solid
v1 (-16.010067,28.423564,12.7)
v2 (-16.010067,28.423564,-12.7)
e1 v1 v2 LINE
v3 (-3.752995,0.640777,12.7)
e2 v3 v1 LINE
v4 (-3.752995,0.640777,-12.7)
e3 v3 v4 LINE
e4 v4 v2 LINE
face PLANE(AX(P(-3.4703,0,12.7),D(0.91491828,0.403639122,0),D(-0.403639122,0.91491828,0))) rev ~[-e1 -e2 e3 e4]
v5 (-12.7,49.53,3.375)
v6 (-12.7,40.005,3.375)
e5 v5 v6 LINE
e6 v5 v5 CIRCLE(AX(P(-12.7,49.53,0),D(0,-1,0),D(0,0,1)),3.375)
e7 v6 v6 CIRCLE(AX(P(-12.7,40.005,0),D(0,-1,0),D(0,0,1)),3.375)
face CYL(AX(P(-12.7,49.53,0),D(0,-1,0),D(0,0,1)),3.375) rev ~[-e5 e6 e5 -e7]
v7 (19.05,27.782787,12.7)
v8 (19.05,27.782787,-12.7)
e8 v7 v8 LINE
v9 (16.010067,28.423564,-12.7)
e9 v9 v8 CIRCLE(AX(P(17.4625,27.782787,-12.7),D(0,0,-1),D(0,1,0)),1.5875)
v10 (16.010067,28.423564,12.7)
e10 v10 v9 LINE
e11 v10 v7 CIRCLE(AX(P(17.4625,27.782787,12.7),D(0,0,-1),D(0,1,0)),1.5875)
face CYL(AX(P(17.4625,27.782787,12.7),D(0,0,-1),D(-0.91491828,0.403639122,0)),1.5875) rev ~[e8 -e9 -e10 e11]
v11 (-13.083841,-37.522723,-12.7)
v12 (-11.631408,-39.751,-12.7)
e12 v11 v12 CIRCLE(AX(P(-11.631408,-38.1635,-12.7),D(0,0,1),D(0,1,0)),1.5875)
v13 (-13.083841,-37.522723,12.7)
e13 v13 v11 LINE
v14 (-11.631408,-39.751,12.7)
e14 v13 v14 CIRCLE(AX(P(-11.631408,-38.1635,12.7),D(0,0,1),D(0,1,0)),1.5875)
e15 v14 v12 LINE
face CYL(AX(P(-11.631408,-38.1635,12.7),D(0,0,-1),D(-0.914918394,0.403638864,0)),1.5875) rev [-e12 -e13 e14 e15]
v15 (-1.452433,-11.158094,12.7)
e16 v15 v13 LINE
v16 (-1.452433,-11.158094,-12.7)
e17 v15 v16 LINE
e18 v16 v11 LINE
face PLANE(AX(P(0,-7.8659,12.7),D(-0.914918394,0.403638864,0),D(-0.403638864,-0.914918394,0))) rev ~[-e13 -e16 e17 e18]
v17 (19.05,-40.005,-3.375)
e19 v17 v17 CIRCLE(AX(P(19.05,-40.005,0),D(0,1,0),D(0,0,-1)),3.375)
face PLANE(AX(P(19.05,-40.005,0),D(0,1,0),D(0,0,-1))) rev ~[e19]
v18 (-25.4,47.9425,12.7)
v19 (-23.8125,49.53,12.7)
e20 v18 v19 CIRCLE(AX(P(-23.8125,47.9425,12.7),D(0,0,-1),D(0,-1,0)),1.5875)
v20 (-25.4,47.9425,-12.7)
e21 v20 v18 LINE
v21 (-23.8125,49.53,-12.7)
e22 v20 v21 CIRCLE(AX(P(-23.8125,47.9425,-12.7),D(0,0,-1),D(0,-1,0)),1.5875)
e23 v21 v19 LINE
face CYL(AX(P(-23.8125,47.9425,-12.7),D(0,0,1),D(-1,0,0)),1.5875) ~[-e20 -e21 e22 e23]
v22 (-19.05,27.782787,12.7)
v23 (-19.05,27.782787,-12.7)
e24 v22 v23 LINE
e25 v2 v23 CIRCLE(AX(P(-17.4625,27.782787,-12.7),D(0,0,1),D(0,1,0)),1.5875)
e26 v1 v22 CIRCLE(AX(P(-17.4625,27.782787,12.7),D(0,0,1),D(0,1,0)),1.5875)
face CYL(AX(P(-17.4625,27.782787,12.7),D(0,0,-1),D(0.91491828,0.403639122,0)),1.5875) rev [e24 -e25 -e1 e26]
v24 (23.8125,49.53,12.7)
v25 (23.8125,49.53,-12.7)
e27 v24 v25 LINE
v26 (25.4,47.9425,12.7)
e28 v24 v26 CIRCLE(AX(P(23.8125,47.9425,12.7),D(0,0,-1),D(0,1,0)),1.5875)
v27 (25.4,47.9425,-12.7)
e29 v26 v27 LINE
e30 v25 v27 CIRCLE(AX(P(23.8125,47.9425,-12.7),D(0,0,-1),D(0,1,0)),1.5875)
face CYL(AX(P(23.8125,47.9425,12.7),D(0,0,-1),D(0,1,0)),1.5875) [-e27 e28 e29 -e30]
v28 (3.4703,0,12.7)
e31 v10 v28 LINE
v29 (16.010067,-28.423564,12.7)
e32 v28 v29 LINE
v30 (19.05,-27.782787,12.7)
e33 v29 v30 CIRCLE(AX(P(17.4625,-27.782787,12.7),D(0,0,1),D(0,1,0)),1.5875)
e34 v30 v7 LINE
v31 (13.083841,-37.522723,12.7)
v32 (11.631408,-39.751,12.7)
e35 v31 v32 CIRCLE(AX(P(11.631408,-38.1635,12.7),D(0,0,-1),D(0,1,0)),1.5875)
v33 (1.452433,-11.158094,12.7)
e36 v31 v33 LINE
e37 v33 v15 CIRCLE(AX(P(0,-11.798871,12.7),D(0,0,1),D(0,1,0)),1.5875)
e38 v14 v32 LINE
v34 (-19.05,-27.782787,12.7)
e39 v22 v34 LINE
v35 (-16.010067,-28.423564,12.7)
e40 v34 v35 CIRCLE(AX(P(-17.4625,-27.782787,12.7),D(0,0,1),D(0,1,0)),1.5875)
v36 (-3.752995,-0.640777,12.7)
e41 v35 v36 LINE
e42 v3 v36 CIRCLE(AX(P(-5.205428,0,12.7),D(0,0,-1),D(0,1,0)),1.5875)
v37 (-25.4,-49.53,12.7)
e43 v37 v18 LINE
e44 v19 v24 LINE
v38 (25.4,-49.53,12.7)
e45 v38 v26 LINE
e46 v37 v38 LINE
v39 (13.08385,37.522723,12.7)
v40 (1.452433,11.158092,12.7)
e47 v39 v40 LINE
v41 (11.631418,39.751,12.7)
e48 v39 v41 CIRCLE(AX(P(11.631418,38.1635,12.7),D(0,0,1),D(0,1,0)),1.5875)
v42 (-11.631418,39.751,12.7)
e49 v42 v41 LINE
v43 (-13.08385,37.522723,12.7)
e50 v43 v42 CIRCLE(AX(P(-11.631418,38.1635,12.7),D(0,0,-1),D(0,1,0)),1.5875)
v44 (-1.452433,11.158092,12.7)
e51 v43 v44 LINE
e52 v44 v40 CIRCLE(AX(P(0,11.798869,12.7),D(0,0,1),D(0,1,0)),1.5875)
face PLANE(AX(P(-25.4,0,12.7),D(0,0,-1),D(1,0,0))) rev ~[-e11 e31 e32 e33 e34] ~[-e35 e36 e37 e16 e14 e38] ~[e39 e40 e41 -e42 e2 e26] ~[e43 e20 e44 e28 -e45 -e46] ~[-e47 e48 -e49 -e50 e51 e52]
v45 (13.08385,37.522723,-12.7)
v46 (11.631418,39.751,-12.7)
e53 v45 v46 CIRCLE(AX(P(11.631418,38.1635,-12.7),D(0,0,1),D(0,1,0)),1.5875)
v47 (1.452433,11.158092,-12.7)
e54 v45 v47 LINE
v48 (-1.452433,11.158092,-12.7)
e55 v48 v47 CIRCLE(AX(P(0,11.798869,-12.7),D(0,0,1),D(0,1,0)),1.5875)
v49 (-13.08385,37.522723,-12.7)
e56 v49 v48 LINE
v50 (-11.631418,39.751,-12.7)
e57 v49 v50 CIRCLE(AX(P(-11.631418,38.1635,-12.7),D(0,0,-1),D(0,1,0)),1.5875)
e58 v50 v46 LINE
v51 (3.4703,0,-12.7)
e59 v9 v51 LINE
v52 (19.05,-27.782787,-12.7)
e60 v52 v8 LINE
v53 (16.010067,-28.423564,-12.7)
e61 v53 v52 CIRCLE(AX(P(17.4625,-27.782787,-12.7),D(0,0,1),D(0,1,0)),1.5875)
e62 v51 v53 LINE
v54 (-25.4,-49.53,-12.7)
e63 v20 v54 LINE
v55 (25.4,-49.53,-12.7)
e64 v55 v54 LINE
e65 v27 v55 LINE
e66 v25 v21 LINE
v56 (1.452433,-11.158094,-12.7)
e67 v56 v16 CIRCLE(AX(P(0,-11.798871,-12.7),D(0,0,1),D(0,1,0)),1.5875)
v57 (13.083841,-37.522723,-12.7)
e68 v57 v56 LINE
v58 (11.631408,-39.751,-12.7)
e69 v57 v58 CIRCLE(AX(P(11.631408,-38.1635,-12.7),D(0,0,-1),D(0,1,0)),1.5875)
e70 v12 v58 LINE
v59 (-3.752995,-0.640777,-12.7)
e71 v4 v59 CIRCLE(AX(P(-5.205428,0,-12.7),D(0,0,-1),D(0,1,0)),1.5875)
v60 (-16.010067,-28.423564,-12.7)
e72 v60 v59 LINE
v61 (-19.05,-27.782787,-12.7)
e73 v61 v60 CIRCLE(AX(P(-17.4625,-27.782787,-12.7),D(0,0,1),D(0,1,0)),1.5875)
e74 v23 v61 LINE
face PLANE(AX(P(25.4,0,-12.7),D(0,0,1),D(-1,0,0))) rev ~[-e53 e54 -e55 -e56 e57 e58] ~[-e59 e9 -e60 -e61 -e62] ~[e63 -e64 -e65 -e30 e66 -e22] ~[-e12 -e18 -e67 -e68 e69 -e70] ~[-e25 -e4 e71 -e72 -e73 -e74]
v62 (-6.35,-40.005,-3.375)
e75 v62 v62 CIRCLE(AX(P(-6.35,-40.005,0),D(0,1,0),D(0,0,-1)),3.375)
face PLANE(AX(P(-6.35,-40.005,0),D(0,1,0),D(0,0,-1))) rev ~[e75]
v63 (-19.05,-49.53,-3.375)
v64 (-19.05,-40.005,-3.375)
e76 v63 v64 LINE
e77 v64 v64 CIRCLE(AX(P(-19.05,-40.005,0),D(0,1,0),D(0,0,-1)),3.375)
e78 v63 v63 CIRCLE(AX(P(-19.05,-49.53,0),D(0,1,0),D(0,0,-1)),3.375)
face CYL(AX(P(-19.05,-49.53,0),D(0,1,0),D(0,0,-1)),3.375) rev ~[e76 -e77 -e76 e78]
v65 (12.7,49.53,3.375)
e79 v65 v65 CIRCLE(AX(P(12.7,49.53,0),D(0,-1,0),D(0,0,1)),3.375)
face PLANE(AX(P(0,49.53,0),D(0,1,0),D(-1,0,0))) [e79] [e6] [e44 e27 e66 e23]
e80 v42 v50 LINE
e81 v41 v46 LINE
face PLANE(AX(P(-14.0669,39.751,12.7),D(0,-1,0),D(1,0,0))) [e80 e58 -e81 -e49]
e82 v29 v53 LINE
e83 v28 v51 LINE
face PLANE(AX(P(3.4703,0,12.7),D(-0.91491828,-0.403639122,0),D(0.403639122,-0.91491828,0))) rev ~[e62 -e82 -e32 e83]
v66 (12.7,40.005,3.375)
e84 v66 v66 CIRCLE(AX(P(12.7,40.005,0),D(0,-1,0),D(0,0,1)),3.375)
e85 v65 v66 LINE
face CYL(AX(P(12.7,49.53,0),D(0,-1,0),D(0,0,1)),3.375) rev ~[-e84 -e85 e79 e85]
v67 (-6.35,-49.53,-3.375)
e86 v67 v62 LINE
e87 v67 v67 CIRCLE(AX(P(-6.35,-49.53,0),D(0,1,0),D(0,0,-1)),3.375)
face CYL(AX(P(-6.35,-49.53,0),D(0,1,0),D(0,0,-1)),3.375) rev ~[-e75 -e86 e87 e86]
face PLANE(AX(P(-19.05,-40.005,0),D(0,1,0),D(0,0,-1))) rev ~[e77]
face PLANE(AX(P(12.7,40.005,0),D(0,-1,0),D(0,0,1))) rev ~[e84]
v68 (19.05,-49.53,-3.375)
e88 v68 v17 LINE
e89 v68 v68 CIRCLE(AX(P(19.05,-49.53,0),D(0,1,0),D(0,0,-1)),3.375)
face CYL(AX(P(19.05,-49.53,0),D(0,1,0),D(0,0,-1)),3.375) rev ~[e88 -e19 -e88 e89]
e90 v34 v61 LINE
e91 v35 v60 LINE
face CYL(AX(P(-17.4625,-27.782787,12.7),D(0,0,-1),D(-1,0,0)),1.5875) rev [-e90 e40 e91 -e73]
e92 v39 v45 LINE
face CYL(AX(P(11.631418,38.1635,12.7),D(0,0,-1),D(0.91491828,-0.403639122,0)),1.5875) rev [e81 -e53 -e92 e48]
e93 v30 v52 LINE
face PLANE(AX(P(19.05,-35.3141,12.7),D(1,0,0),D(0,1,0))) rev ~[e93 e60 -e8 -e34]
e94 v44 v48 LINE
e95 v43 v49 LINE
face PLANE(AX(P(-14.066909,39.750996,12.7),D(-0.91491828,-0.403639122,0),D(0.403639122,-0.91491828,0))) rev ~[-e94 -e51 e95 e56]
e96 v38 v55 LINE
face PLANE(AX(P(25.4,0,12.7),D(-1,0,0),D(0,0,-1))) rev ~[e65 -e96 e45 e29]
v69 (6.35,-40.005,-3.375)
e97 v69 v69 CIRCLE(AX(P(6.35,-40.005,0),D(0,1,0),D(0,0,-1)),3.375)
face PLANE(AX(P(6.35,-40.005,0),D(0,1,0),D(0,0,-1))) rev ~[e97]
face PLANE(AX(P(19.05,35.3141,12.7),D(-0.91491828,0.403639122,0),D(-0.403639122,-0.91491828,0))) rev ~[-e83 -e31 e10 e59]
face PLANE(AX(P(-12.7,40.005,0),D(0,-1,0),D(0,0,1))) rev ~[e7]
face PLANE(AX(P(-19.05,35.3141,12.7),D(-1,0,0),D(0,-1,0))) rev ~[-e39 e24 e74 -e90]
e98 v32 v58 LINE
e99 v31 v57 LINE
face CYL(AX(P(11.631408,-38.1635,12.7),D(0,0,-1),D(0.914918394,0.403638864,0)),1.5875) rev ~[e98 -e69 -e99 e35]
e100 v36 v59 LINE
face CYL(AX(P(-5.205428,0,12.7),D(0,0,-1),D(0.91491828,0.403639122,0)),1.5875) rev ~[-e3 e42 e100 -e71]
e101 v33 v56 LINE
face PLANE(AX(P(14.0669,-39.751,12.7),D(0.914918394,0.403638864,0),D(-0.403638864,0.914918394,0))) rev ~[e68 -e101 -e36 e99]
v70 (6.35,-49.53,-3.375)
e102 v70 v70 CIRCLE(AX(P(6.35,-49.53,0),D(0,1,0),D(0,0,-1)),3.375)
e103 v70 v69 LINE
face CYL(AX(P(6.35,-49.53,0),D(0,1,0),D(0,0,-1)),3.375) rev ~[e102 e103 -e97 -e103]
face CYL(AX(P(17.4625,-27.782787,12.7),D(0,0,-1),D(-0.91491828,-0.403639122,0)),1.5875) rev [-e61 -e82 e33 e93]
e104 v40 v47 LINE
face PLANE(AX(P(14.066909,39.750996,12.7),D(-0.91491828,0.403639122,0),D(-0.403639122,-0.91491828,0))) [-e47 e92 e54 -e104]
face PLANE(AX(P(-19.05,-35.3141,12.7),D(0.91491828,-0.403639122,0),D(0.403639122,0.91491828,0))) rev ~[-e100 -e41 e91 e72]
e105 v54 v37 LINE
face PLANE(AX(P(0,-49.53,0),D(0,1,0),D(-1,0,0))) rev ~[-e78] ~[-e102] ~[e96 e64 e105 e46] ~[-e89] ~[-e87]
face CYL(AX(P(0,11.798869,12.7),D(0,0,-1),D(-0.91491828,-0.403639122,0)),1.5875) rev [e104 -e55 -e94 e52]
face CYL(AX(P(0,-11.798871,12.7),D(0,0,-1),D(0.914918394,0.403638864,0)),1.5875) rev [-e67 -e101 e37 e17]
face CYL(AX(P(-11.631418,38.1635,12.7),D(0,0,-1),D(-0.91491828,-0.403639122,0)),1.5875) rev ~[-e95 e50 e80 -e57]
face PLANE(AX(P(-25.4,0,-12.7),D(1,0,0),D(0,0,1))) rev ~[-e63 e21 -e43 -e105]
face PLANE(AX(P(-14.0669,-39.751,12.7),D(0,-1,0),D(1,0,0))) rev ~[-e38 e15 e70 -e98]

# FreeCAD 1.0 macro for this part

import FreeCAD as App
import Part
import Sketcher
Q = App.Units.Quantity


def edges_at(feature, points):
    """Names of the edges that pass closest to the given points."""
    edges = feature.Shape.Edges
    near = lambda p: min(range(len(edges)), key=lambda i: edges[i].distToShape(Part.Vertex(*p))[0])
    return sorted({f"Edge{near(p) + 1}" for p in points})


def add_polygon(sketch, points):
    """Adds a closed chain of lines whose ends are joined by coincident constraints."""
    first, n = sketch.GeometryCount, len(points)
    for a, b in zip(points, points[1:] + points[:1]):
        sketch.addGeometry(Part.LineSegment(App.Vector(*a, 0), App.Vector(*b, 0)), False)
    for i in range(n):
        sketch.addConstraint(Sketcher.Constraint("Coincident", first + i, 2, first + (i + 1) % n, 1))

doc = App.newDocument("Part")
params = doc.addObject("Spreadsheet::Sheet", "Params")
for row, (alias, value) in enumerate([
    ("sketch1_width", "2 in"),
    ("sketch1_height", "1 in"),
    ("pad1_length", "3.9 in"),
    ("fillet_radius", "0.0625 in"),
    ("hole_diameter", "6.75 mm"),
    ("hole_depth", "0.375 in"),
    ("hole2_diameter", "6.75 mm"),
    ("hole2_depth", "0.375 in"),
], start=1):
    params.set(f"A{row}", alias)
    params.set(f"B{row}", "=" + value)
    params.setAlias(f"B{row}", alias)

body = doc.addObject("PartDesign::Body", "Body")

# Sketch on XZ plane
sketch1 = body.newObject("Sketcher::SketchObject", "Sketch")
sketch1.AttachmentSupport = (doc.getObject("XZ_Plane"), [""])
sketch1.MapMode = "FlatFace"
add_polygon(sketch1, [(-25.4, -12.7), (-25.4, 12.7), (25.4, 12.7), (25.4, -12.7)])  # lines 0-3
sketch1.addConstraint([
    Sketcher.Constraint("Vertical", 0),
    Sketcher.Constraint("Horizontal", 1),
    Sketcher.Constraint("Vertical", 2),
    Sketcher.Constraint("Horizontal", 3),
    Sketcher.Constraint("Symmetric", 0, 2, 2, 2, -1, 1),
    Sketcher.Constraint("DistanceX", 1, 1, 1, 2, Q("2 in")),
    Sketcher.Constraint("DistanceY", 0, 1, 0, 2, Q("1 in")),
])
sketch1.setExpression("Constraints[9]", "Params.sketch1_width")
sketch1.setExpression("Constraints[10]", "Params.sketch1_height")
pad1 = body.newObject("PartDesign::Pad", "Pad")
pad1.Profile = sketch1
pad1.setExpression("Length", "Params.pad1_length")
pad1.Midplane = True

# Sketch on XY plane
sketch2 = body.newObject("Sketcher::SketchObject", "Sketch001")
sketch2.AttachmentSupport = (doc.getObject("XY_Plane"), [""])
sketch2.MapMode = "FlatFace"
sketch2.AttachmentOffset = App.Placement(App.Vector(0, 0, 0.5 * 25.4), App.Rotation())
add_polygon(sketch2, [(14.0669, -39.751), (0, -7.8659), (-14.0669, -39.751)])  # lines 0-2
add_polygon(sketch2, [(19.05, 35.3141), (3.4703, 0), (19.05, -35.3141)])  # lines 3-5
add_polygon(sketch2, [(14.0669, 39.751), (-14.066909, 39.750996), (0, 7.8659)])  # lines 6-8
add_polygon(sketch2, [(-3.4703, 0), (-19.05, 35.3141), (-19.05, -35.3141)])  # lines 9-11
sketch2.addConstraint([
    Sketcher.Constraint("Horizontal", 2),
    Sketcher.Constraint("Vertical", 5),
    Sketcher.Constraint("Horizontal", 6),
    Sketcher.Constraint("Vertical", 10),
    Sketcher.Constraint("Symmetric", 2, 2, 6, 2, -1, 1),
    Sketcher.Constraint("Symmetric", 0, 2, 7, 2, -1, 1),
    Sketcher.Constraint("Symmetric", 4, 2, 9, 2, -1, 1),
    Sketcher.Constraint("Symmetric", 3, 2, 11, 2, -1, 1),
    Sketcher.Constraint("PointOnObject", 0, 2, -2),
    Sketcher.Constraint("PointOnObject", 3, 2, -1),
    Sketcher.Constraint("Parallel", 1, 3),
    Sketcher.Constraint("Parallel", 0, 4),
    Sketcher.Constraint("Parallel", 3, 8),
    Sketcher.Constraint("Parallel", 8, 11),
    Sketcher.Constraint("Horizontal", 5, 2, 9, 2),
    Sketcher.Constraint("DistanceY", 0, 2, 5, 2, Q("1.7 in")),
    Sketcher.Constraint("DistanceX", 9, 2, 5, 2, Q("1.5 in")),
    Sketcher.Constraint("DistanceY", 1, 2, 6, 2, Q("3.13 in")),
    Sketcher.Constraint("Distance", 3, Q("1.5196 in")),
    Sketcher.Constraint("DistanceX", 2, 1, 2, 2, Q("28.1338 mm")),
])
pocket1 = body.newObject("PartDesign::Pocket", "Pocket")
pocket1.Profile = sketch2
pocket1.Type = "ThroughAll"
doc.recompute()

fillet = body.newObject("PartDesign::Fillet", "Fillet")
fillet.Base = (pocket1, edges_at(pocket1, [
    (-14.067, -39.751, 0),
    (-19.05, -35.314, 0),
    (14.067, -39.751, 0),
    (19.05, -35.314, 0),
    (0, 7.866, 0),
    (-3.47, 0, 0),
    (-19.05, 35.314, 0),
    (19.05, 35.314, 0),
    (0, -7.866, 0),
    (25.4, 49.53, 0),
    (-25.4, 49.53, 0),
    (-14.067, 39.751, 0),
    (14.067, 39.751, 0),
]))
fillet.setExpression("Radius", "Params.fillet_radius")

# Sketch on XZ plane
sketch3 = body.newObject("Sketcher::SketchObject", "Sketch002")
sketch3.AttachmentSupport = (doc.getObject("XZ_Plane"), [""])
sketch3.MapMode = "FlatFace"
sketch3.AttachmentOffset = App.Placement(App.Vector(0, 0, 1.95 * 25.4), App.Rotation())
sketch3.addGeometry([
    Part.Circle(App.Vector(-6.35, 0, 0), App.Vector(0, 0, 1), 3.375),
    Part.Circle(App.Vector(6.35, 0, 0), App.Vector(0, 0, 1), 3.375),
    Part.Circle(App.Vector(-19.05, 0, 0), App.Vector(0, 0, 1), 3.375),
    Part.Circle(App.Vector(19.05, 0, 0), App.Vector(0, 0, 1), 3.375),
], False)
sketch3.addConstraint([
    Sketcher.Constraint("Equal", 0, 1),
    Sketcher.Constraint("Equal", 1, 2),
    Sketcher.Constraint("Equal", 2, 3),
    Sketcher.Constraint("Symmetric", 0, 3, 1, 3, -1, 1),
    Sketcher.Constraint("Symmetric", 2, 3, 3, 3, -1, 1),
    Sketcher.Constraint("PointOnObject", 0, 3, -1),
    Sketcher.Constraint("PointOnObject", 2, 3, -1),
    Sketcher.Constraint("DistanceX", 2, 3, 1, 3, Q("1 in")),
    Sketcher.Constraint("DistanceX", 0, 3, 1, 3, Q("0.5 in")),
    Sketcher.Constraint("Diameter", 0, Q("6.75 mm")),
])
doc.recompute()
hole = body.newObject("PartDesign::Hole", "Hole")
hole.Profile = sketch3
hole.ThreadType = "None"
hole.setExpression("Diameter", "Params.hole_diameter")
hole.DepthType = "Dimension"
hole.setExpression("Depth", "Params.hole_depth")
hole.DrillPoint = "Flat"

# Sketch on XZ plane
sketch4 = body.newObject("Sketcher::SketchObject", "Sketch003")
sketch4.AttachmentSupport = (doc.getObject("XZ_Plane"), [""])
sketch4.MapMode = "FlatFace"
sketch4.AttachmentOffset = App.Placement(App.Vector(0, 0, -1.95 * 25.4), App.Rotation())
sketch4.addGeometry([
    Part.Circle(App.Vector(-12.7, 0, 0), App.Vector(0, 0, 1), 3.375),
    Part.Circle(App.Vector(12.7, 0, 0), App.Vector(0, 0, 1), 3.375),
], False)
sketch4.addConstraint([
    Sketcher.Constraint("Equal", 0, 1),
    Sketcher.Constraint("Symmetric", 0, 3, 1, 3, -1, 1),
    Sketcher.Constraint("PointOnObject", 0, 3, -1),
    Sketcher.Constraint("DistanceX", 0, 3, 1, 3, Q("1 in")),
    Sketcher.Constraint("Diameter", 0, Q("6.75 mm")),
])
doc.recompute()
hole2 = body.newObject("PartDesign::Hole", "Hole001")
hole2.Profile = sketch4
hole2.ThreadType = "None"
hole2.setExpression("Diameter", "Params.hole2_diameter")
hole2.DepthType = "Dimension"
hole2.setExpression("Depth", "Params.hole2_depth")
hole2.DrillPoint = "Flat"
hole2.Reversed = True

doc.recompute()
